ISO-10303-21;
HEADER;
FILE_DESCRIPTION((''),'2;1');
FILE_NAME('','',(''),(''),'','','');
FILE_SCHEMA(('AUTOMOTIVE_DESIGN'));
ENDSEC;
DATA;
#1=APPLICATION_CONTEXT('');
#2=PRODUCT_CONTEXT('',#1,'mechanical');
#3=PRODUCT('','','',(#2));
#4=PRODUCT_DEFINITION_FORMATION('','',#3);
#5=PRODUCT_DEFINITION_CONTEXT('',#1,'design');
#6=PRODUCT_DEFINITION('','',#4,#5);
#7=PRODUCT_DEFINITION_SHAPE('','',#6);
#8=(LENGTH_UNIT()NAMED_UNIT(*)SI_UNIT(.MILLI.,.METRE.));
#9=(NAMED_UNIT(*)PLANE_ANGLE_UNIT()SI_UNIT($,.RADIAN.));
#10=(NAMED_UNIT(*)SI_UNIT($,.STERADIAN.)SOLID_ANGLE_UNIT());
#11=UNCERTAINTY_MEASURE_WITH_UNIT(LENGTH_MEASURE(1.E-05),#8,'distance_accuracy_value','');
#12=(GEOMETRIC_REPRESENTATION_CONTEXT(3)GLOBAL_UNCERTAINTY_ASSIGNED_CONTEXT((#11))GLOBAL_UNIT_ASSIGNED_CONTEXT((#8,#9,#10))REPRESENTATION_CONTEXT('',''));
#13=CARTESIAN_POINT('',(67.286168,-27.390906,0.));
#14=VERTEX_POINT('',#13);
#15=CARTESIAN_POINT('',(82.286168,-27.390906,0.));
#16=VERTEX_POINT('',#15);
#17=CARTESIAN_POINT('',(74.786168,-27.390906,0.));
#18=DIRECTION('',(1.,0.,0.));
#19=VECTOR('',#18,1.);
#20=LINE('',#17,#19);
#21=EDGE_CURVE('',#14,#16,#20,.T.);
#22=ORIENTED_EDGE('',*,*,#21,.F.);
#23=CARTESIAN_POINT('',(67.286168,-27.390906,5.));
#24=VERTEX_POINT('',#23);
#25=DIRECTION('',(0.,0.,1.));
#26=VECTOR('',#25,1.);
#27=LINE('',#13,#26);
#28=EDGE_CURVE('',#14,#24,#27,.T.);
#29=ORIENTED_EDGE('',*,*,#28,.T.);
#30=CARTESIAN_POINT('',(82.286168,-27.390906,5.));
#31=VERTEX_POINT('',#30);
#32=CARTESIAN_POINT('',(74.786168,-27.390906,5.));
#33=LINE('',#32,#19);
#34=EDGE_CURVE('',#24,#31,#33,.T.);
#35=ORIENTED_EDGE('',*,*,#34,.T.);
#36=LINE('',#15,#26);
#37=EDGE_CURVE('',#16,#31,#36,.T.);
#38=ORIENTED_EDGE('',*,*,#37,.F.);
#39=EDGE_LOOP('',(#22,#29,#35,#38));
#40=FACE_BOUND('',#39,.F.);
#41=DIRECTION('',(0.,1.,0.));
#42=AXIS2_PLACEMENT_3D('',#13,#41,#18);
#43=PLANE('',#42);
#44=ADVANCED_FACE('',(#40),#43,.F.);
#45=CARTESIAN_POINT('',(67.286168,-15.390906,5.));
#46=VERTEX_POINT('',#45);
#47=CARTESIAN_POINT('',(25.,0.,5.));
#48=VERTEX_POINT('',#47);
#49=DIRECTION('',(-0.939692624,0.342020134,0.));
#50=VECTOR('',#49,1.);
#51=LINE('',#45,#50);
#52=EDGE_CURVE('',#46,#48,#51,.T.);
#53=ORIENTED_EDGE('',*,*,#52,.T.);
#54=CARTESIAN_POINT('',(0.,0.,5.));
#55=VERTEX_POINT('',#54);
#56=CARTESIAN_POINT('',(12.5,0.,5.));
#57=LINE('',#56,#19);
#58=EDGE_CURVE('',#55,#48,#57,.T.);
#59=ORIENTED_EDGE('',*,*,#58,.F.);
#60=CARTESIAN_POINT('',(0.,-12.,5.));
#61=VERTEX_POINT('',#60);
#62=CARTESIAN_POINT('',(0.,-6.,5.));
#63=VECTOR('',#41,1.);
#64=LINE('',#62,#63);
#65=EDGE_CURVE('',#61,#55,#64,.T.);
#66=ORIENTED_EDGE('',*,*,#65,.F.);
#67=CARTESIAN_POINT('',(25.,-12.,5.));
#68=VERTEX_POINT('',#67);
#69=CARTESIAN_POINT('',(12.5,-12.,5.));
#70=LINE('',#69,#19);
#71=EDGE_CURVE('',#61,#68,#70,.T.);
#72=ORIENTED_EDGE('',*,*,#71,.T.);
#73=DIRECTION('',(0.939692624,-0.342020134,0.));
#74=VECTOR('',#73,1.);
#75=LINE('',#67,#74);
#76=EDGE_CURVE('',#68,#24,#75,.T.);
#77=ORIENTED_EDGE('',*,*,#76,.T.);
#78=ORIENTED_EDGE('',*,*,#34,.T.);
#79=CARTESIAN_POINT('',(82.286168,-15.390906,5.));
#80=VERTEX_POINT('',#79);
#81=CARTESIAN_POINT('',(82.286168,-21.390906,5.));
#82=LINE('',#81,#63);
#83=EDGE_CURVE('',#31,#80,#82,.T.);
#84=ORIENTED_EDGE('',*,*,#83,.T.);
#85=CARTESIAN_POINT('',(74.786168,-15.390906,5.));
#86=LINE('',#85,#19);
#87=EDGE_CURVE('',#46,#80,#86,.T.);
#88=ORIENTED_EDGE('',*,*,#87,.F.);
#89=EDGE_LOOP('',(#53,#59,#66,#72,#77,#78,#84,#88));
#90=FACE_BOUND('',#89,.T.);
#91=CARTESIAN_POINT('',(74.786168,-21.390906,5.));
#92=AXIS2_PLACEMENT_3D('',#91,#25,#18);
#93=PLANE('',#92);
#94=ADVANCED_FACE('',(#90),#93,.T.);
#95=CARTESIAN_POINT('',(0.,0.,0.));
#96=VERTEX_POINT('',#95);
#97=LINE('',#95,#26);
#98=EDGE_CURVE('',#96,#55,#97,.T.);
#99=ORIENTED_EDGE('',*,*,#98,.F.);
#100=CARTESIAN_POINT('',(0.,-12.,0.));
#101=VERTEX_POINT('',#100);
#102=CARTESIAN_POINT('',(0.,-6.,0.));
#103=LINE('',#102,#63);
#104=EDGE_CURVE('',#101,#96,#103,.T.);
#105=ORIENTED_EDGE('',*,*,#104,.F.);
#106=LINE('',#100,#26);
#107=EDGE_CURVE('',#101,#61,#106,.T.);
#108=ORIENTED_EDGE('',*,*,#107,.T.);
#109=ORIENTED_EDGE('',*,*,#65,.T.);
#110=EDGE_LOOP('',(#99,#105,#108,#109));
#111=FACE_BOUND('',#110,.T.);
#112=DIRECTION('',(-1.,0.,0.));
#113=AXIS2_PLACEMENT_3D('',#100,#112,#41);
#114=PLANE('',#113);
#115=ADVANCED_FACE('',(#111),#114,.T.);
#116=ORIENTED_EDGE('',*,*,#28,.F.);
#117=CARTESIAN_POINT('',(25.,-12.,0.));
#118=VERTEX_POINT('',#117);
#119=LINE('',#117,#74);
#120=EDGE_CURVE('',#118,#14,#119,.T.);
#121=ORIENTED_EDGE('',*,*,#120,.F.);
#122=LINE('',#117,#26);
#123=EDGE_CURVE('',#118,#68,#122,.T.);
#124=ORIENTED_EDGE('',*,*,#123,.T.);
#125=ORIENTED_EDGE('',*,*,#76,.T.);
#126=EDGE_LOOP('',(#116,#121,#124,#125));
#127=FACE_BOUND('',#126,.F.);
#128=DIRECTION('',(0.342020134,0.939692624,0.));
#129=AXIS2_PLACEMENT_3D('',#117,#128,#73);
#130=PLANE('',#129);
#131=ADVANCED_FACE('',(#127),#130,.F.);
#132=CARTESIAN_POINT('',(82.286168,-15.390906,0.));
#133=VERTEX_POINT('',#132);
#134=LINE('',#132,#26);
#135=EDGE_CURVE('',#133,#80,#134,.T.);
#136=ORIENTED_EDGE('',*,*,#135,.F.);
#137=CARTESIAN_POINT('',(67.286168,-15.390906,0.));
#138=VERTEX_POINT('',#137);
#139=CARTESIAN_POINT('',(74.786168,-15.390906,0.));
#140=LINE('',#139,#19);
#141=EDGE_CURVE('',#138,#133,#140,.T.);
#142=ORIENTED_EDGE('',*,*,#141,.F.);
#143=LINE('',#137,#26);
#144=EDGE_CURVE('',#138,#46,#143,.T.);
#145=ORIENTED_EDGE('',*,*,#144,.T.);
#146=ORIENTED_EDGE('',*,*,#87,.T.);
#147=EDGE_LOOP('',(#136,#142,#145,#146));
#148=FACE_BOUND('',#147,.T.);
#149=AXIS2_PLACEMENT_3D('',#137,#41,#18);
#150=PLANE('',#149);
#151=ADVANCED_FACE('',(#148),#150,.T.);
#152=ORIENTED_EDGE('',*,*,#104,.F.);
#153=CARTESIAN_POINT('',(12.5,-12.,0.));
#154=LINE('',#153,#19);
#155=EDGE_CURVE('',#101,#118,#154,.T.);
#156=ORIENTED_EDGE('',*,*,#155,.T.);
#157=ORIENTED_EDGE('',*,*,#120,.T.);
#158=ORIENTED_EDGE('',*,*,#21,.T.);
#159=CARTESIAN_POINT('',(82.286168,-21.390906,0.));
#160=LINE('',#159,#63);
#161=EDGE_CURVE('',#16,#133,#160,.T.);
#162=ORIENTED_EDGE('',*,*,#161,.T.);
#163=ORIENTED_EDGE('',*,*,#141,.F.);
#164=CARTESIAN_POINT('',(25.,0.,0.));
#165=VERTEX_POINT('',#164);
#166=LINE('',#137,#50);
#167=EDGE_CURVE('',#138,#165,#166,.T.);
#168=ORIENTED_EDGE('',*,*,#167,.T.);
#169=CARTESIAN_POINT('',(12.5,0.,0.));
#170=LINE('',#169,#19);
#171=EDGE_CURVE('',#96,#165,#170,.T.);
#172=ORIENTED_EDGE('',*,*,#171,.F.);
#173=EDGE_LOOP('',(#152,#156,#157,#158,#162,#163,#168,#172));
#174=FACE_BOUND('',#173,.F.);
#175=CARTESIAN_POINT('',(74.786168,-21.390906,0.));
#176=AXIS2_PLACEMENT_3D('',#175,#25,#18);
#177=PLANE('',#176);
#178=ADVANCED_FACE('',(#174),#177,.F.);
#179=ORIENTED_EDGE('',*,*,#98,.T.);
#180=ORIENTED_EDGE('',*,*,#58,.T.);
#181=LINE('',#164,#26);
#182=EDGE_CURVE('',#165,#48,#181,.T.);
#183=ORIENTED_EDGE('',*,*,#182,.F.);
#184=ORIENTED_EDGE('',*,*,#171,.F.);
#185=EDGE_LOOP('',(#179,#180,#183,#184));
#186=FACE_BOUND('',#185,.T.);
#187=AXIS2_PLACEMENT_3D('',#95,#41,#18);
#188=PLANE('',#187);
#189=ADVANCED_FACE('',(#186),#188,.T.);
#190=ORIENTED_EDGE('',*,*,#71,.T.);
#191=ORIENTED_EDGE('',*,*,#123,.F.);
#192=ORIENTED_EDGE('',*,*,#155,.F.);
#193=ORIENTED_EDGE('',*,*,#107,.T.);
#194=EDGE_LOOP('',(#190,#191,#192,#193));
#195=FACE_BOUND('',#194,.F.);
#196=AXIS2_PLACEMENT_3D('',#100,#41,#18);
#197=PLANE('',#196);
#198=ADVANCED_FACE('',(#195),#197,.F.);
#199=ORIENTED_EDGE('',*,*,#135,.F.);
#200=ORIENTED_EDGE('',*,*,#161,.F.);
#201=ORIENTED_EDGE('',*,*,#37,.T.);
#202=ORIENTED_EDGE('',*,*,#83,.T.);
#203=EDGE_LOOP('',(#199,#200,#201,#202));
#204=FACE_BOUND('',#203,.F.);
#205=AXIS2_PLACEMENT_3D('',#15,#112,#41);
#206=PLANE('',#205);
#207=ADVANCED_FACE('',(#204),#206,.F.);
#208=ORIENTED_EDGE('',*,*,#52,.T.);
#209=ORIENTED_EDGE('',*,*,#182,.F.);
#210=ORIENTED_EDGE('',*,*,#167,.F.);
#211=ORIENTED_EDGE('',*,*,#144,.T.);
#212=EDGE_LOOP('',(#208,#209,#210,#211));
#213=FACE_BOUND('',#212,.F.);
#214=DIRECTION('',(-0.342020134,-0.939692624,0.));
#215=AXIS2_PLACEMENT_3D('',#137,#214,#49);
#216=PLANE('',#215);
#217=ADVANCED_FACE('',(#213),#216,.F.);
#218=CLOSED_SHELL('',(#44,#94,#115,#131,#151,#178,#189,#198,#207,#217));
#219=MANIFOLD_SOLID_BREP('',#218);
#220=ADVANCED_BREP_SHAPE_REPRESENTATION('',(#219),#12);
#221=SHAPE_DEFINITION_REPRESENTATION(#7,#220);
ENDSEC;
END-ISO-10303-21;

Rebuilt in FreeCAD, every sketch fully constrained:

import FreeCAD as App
import Part
import Sketcher
from FreeCAD import Vector
Q = App.Units.Quantity

doc = App.newDocument("Part")
body = doc.addObject("PartDesign::Body", "Body")

sketch1 = body.newObject("Sketcher::SketchObject", "Sketch")
sketch1.AttachmentSupport = (doc.getObject("XY_Plane"), [""])
sketch1.MapMode = "FlatFace"
sketch1.addGeometry([
    Part.LineSegment(Vector(67, -27, 0), Vector(82, -27, 0)),
    Part.LineSegment(Vector(82, -27, 0), Vector(82, -15, 0)),
    Part.LineSegment(Vector(82, -15, 0), Vector(67, -15, 0)),
    Part.LineSegment(Vector(67, -15, 0), Vector(25, 0, 0)),
    Part.LineSegment(Vector(25, 0, 0), Vector(0, 0, 0)),
    Part.LineSegment(Vector(0, 0, 0), Vector(0, -12, 0)),
    Part.LineSegment(Vector(0, -12, 0), Vector(25, -12, 0)),
    Part.LineSegment(Vector(25, -12, 0), Vector(67, -27, 0)),
], False)
sketch1.addConstraint([
    Sketcher.Constraint("Coincident", 0, 2, 1, 1),
    Sketcher.Constraint("Coincident", 1, 2, 2, 1),
    Sketcher.Constraint("Coincident", 2, 2, 3, 1),
    Sketcher.Constraint("Coincident", 3, 2, 4, 1),
    Sketcher.Constraint("Coincident", 4, 2, 5, 1),
    Sketcher.Constraint("Coincident", 5, 2, 6, 1),
    Sketcher.Constraint("Coincident", 6, 2, 7, 1),
    Sketcher.Constraint("Coincident", 7, 2, 0, 1),
    Sketcher.Constraint("Horizontal", 0),
    Sketcher.Constraint("Vertical", 1),
    Sketcher.Constraint("Horizontal", 2),
    Sketcher.Constraint("Horizontal", 4),
    Sketcher.Constraint("Vertical", 5),
    Sketcher.Constraint("Horizontal", 6),
    Sketcher.Constraint("Coincident", 4, 2, -1, 1),
    Sketcher.Constraint("Parallel", 3, 7),
    Sketcher.Constraint("Vertical", 3, 2, 6, 2),
    Sketcher.Constraint("Vertical", 2, 2, 7, 2),
    Sketcher.Constraint("DistanceX", 0, 1, 0, 2, 15.0),
    Sketcher.Constraint("DistanceX", 4, 2, 4, 1, 25.0),
    Sketcher.Constraint("DistanceY", 1, 1, 1, 2, 12.0),
    Sketcher.Constraint("Angle", 3, Q("160.000001 deg")),
    Sketcher.Constraint("Distance", 3, 45.0),
])
pad1 = body.newObject("PartDesign::Pad", "Pad")
pad1.Profile = sketch1
pad1.Length = 5

doc.recompute()
